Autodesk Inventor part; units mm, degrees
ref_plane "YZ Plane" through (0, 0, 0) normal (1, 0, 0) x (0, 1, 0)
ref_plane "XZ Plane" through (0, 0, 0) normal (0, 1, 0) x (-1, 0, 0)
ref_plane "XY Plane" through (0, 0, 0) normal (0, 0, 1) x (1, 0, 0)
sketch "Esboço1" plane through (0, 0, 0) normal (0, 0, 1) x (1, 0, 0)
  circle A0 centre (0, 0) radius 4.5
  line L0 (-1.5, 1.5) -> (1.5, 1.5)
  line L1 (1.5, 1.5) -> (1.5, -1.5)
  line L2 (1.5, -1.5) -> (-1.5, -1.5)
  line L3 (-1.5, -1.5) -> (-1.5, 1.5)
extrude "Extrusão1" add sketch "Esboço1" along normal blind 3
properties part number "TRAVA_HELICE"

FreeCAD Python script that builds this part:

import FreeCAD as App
import Part
import Sketcher

V = App.Vector
Q = App.Units.Quantity

doc = App.newDocument("Part")
body = doc.addObject("PartDesign::Body", "Body")

sketch1 = doc.addObject("Sketcher::SketchObject", "Sketch")
body.addObject(sketch1)
sketch1.AttachmentSupport = (doc.XY_Plane, [""])
sketch1.MapMode = "FlatFace"
sketch1.addGeometry(Part.Circle(V(0, 0, 0), V(0, 0, 1), 4.5), False)
sketch1.addGeometry(Part.LineSegment(V(-1.5, -1.5, 0), V(-1.5, 1.5, 0)), False)
sketch1.addGeometry(Part.LineSegment(V(-1.5, 1.5, 0), V(1.5, 1.5, 0)), False)
sketch1.addGeometry(Part.LineSegment(V(1.5, 1.5, 0), V(1.5, -1.5, 0)), False)
sketch1.addGeometry(Part.LineSegment(V(1.5, -1.5, 0), V(-1.5, -1.5, 0)), False)
sketch1.addConstraint(Sketcher.Constraint("Coincident", 1, 2, 2, 1))
sketch1.addConstraint(Sketcher.Constraint("Coincident", 2, 2, 3, 1))
sketch1.addConstraint(Sketcher.Constraint("Coincident", 3, 2, 4, 1))
sketch1.addConstraint(Sketcher.Constraint("Coincident", 4, 2, 1, 1))
sketch1.addConstraint(Sketcher.Constraint("Vertical", 1))
sketch1.addConstraint(Sketcher.Constraint("Horizontal", 2))
sketch1.addConstraint(Sketcher.Constraint("Vertical", 3))
sketch1.addConstraint(Sketcher.Constraint("Horizontal", 4))
sketch1.addConstraint(Sketcher.Constraint("Coincident", 0, 3, -1, 1))
sketch1.addConstraint(Sketcher.Constraint("Symmetric", 1, 2, 3, 2, -1, 1))
sketch1.addConstraint(Sketcher.Constraint("Equal", 4, 1))
sketch1.addConstraint(Sketcher.Constraint("Diameter", 0, Q("9 mm")))
sketch1.addConstraint(Sketcher.Constraint("DistanceX", 2, 1, 2, 2, Q("3 mm")))
pad1 = doc.addObject("PartDesign::Pad", "Pad")
body.addObject(pad1)
pad1.Profile = sketch1
pad1.Length = 3

doc.recompute()
